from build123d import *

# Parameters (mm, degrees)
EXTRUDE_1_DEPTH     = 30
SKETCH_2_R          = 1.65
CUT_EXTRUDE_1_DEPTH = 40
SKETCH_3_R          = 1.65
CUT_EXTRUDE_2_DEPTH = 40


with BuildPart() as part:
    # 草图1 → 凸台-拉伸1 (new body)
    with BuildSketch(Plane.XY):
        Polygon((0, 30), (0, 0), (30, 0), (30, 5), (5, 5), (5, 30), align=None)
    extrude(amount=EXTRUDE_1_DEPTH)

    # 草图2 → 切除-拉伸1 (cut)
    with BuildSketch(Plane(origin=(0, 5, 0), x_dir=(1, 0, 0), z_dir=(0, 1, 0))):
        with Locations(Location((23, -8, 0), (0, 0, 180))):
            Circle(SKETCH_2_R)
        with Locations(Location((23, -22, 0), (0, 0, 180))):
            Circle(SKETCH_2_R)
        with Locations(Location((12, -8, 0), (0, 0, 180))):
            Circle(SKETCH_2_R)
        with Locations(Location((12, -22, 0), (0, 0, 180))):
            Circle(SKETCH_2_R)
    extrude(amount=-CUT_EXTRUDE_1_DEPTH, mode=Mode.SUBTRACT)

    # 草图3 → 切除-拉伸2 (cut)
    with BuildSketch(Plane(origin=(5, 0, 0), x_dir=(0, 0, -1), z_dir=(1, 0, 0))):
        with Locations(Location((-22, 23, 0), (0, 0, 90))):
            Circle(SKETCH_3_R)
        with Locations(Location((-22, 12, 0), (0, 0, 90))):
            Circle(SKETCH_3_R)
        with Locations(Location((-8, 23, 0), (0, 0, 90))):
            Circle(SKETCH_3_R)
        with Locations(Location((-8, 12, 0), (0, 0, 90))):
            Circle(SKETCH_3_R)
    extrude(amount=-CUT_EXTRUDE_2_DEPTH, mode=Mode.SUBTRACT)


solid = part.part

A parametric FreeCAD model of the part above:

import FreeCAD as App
import Part
import Sketcher

V = App.Vector

doc = App.newDocument("Part")
body = doc.addObject("PartDesign::Body", "Body")

sketch1 = body.newObject("Sketcher::SketchObject", "Sketch")
sketch1.AttachmentSupport = (doc.getObject("XY_Plane"), [""])
sketch1.MapMode = "FlatFace"
sketch1.addGeometry([
    Part.LineSegment(V(0, 30, 0), V(0, 0, 0)),
    Part.LineSegment(V(0, 0, 0), V(30, 0, 0)),
    Part.LineSegment(V(30, 0, 0), V(30, 5, 0)),
    Part.LineSegment(V(30, 5, 0), V(5, 5, 0)),
    Part.LineSegment(V(5, 5, 0), V(5, 30, 0)),
    Part.LineSegment(V(5, 30, 0), V(0, 30, 0)),
], False)
sketch1.addConstraint([
    Sketcher.Constraint("Coincident", 0, 2, 1, 1),
    Sketcher.Constraint("Coincident", 1, 2, 2, 1),
    Sketcher.Constraint("Coincident", 2, 2, 3, 1),
    Sketcher.Constraint("Coincident", 3, 2, 4, 1),
    Sketcher.Constraint("Coincident", 4, 2, 5, 1),
    Sketcher.Constraint("Coincident", 5, 2, 0, 1),
    Sketcher.Constraint("Vertical", 0),
    Sketcher.Constraint("Horizontal", 1),
    Sketcher.Constraint("Vertical", 2),
    Sketcher.Constraint("Horizontal", 3),
    Sketcher.Constraint("Vertical", 4),
    Sketcher.Constraint("Horizontal", 5),
    Sketcher.Constraint("Coincident", 0, 2, -1, 1),
    Sketcher.Constraint("Equal", 1, 0),
    Sketcher.Constraint("Equal", 5, 2),
    Sketcher.Constraint("DistanceX", 1, 1, 1, 2, 30.0),
    Sketcher.Constraint("DistanceX", 3, 2, 3, 1, 25.0),
])
pad1 = body.newObject("PartDesign::Pad", "Pad")
pad1.Profile = sketch1
pad1.Length = 30

sketch2 = body.newObject("Sketcher::SketchObject", "Sketch001")
sketch2.AttachmentSupport = (doc.getObject("XZ_Plane"), [""])
sketch2.MapMode = "FlatFace"
sketch2.AttachmentOffset = App.Placement(V(0, 0, -5), App.Rotation())
sketch2.addGeometry([
    Part.Circle(V(23, 8, 0), V(0, 0, 1), 1.6),
    Part.Circle(V(23, 22, 0), V(0, 0, 1), 1.6),
    Part.Circle(V(12, 8, 0), V(0, 0, 1), 1.6),
    Part.Circle(V(12, 22, 0), V(0, 0, 1), 1.6),
], False)
sketch2.addConstraint([
    Sketcher.Constraint("Equal", 0, 1),
    Sketcher.Constraint("Equal", 1, 2),
    Sketcher.Constraint("Equal", 2, 3),
    Sketcher.Constraint("Horizontal", 0, 3, 2, 3),
    Sketcher.Constraint("Horizontal", 1, 3, 3, 3),
    Sketcher.Constraint("Vertical", 0, 3, 1, 3),
    Sketcher.Constraint("Vertical", 2, 3, 3, 3),
    Sketcher.Constraint("Diameter", 0, 3.3),
    Sketcher.Constraint("DistanceX", -1, 1, 0, 3, 23.0),
    Sketcher.Constraint("DistanceY", -1, 1, 0, 3, 8.0),
    Sketcher.Constraint("DistanceY", -1, 1, 1, 3, 22.0),
    Sketcher.Constraint("DistanceX", -1, 1, 2, 3, 12.0),
])
pocket1 = body.newObject("PartDesign::Pocket", "Pocket")
pocket1.Profile = sketch2
pocket1.Length = 40
pocket1.Reversed = True

sketch3 = body.newObject("Sketcher::SketchObject", "Sketch002")
sketch3.AttachmentSupport = (doc.getObject("YZ_Plane"), [""])
sketch3.MapMode = "FlatFace"
sketch3.AttachmentOffset = App.Placement(V(0, 0, 5), App.Rotation())
sketch3.addGeometry([
    Part.Circle(V(23, 22, 0), V(0, 0, 1), 1.6),
    Part.Circle(V(12, 22, 0), V(0, 0, 1), 1.6),
    Part.Circle(V(23, 8, 0), V(0, 0, 1), 1.6),
    Part.Circle(V(12, 8, 0), V(0, 0, 1), 1.6),
], False)
sketch3.addConstraint([
    Sketcher.Constraint("Equal", 0, 1),
    Sketcher.Constraint("Equal", 1, 2),
    Sketcher.Constraint("Equal", 2, 3),
    Sketcher.Constraint("Horizontal", 0, 3, 1, 3),
    Sketcher.Constraint("Horizontal", 2, 3, 3, 3),
    Sketcher.Constraint("Vertical", 0, 3, 2, 3),
    Sketcher.Constraint("Vertical", 1, 3, 3, 3),
    Sketcher.Constraint("Diameter", 0, 3.3),
    Sketcher.Constraint("DistanceX", -1, 1, 0, 3, 23.0),
    Sketcher.Constraint("DistanceY", -1, 1, 0, 3, 22.0),
    Sketcher.Constraint("DistanceX", -1, 1, 1, 3, 12.0),
    Sketcher.Constraint("DistanceY", -1, 1, 2, 3, 8.0),
])
pocket2 = body.newObject("PartDesign::Pocket", "Pocket001")
pocket2.Profile = sketch3
pocket2.Length = 40

doc.recompute()
